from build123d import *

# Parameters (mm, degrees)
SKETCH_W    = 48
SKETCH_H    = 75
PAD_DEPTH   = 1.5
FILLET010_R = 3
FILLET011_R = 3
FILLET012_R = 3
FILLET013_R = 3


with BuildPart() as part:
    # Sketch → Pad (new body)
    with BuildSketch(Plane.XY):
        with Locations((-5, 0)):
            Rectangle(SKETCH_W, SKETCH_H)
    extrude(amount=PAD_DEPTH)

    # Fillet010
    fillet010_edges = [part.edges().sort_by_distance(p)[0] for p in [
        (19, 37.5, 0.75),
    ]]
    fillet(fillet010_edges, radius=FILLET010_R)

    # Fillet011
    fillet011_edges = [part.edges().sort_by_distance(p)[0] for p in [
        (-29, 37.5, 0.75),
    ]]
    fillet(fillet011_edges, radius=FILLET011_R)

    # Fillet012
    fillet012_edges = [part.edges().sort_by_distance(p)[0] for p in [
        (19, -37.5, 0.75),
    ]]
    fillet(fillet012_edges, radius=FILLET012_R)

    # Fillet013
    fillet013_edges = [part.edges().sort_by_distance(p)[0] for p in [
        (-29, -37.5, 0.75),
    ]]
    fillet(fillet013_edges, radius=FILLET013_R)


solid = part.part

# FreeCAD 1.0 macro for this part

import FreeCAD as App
import Part
import Sketcher


def edges_at(feature, points):
    """Names of the edges that pass closest to the given points."""
    edges = feature.Shape.Edges
    near = lambda p: min(range(len(edges)), key=lambda i: edges[i].distToShape(Part.Vertex(*p))[0])
    return sorted({f"Edge{near(p) + 1}" for p in points})


def add_polygon(sketch, points):
    """Adds a closed chain of lines whose ends are joined by coincident constraints."""
    first, n = sketch.GeometryCount, len(points)
    for a, b in zip(points, points[1:] + points[:1]):
        sketch.addGeometry(Part.LineSegment(App.Vector(*a, 0), App.Vector(*b, 0)), False)
    for i in range(n):
        sketch.addConstraint(Sketcher.Constraint("Coincident", first + i, 2, first + (i + 1) % n, 1))

doc = App.newDocument("Part")
body = doc.addObject("PartDesign::Body", "Body")

# Sketch on XY plane
sketch1 = body.newObject("Sketcher::SketchObject", "Sketch")
sketch1.AttachmentSupport = (doc.getObject("XY_Plane"), [""])
sketch1.MapMode = "FlatFace"
add_polygon(sketch1, [(-29, 38), (-29, -38), (19, -38), (19, 38)])  # lines 0-3
sketch1.addConstraint([
    Sketcher.Constraint("Vertical", 0),
    Sketcher.Constraint("Horizontal", 1),
    Sketcher.Constraint("Vertical", 2),
    Sketcher.Constraint("Horizontal", 3),
    Sketcher.Constraint("DistanceX", 1, 1, 1, 2, 48.0),
    Sketcher.Constraint("DistanceY", 0, 2, 0, 1, 75.0),
    Sketcher.Constraint("DistanceX", 0, 2, -1, 1, 29.0),
    Sketcher.Constraint("DistanceY", 0, 2, -1, 1, 37.5),
])
pad1 = body.newObject("PartDesign::Pad", "Pad")
pad1.Profile = sketch1
pad1.Length = 1.5
doc.recompute()

fillet = body.newObject("PartDesign::Fillet", "Fillet")
fillet.Base = (pad1, edges_at(pad1, [(19, 37.5, 0.75)]))
fillet.Radius = 3
doc.recompute()

fillet2 = body.newObject("PartDesign::Fillet", "Fillet001")
fillet2.Base = (fillet, edges_at(fillet, [(-29, 37.5, 0.75)]))
fillet2.Radius = 3
doc.recompute()

fillet3 = body.newObject("PartDesign::Fillet", "Fillet002")
fillet3.Base = (fillet2, edges_at(fillet2, [(19, -37.5, 0.75)]))
fillet3.Radius = 3
doc.recompute()

fillet4 = body.newObject("PartDesign::Fillet", "Fillet003")
fillet4.Base = (fillet3, edges_at(fillet3, [(-29, -37.5, 0.75)]))
fillet4.Radius = 3

doc.recompute()
